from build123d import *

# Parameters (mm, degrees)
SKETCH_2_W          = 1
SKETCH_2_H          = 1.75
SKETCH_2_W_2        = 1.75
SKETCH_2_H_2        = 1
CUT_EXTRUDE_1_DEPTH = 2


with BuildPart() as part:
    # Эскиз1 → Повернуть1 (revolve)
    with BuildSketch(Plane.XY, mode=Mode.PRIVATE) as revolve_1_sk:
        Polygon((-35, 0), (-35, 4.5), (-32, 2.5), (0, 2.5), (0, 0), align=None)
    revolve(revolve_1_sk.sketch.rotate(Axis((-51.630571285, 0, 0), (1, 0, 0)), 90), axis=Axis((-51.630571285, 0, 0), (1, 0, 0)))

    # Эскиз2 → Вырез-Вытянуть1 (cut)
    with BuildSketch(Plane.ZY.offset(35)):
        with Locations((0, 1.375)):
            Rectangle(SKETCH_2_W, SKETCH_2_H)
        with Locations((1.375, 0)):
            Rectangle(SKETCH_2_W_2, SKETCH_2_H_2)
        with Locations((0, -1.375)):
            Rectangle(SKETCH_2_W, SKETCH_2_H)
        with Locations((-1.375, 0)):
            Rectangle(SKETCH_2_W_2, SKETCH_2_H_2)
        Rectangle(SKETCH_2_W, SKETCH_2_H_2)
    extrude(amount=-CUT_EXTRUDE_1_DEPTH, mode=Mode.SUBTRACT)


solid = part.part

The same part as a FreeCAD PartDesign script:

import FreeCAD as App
import Part
import Sketcher
from FreeCAD import Vector

doc = App.newDocument("Part")
body = doc.addObject("PartDesign::Body", "Body")

sketch1 = doc.addObject("Sketcher::SketchObject", "Sketch")
body.addObject(sketch1)
sketch1.AttachmentSupport = (doc.XY_Plane, [""])
sketch1.MapMode = "FlatFace"
sketch1.addGeometry([
    Part.LineSegment(Vector(-35, 4.5, 0), Vector(-35, 0, 0)),
    Part.LineSegment(Vector(-35, 0, 0), Vector(0, 0, 0)),
    Part.LineSegment(Vector(0, 0, 0), Vector(0, 2.5, 0)),
    Part.LineSegment(Vector(0, 2.5, 0), Vector(-32, 2.5, 0)),
    Part.LineSegment(Vector(-32, 2.5, 0), Vector(-35, 4.5, 0)),
], False)
sketch1.addConstraint([
    Sketcher.Constraint("Coincident", 0, 2, 1, 1),
    Sketcher.Constraint("Coincident", 1, 2, 2, 1),
    Sketcher.Constraint("Coincident", 2, 2, 3, 1),
    Sketcher.Constraint("Coincident", 3, 2, 4, 1),
    Sketcher.Constraint("Coincident", 4, 2, 0, 1),
    Sketcher.Constraint("Vertical", 0),
    Sketcher.Constraint("Horizontal", 1),
    Sketcher.Constraint("Vertical", 2),
    Sketcher.Constraint("Horizontal", 3),
    Sketcher.Constraint("Coincident", 1, 2, -1, 1),
    Sketcher.Constraint("DistanceX", 1, 1, 1, 2, 35.0),
    Sketcher.Constraint("DistanceX", 3, 2, 3, 1, 32.0),
    Sketcher.Constraint("DistanceY", 0, 2, 0, 1, 4.5),
    Sketcher.Constraint("DistanceY", 2, 1, 2, 2, 2.5),
])
revolution = doc.addObject("PartDesign::Revolution", "Revolution")
body.addObject(revolution)
revolution.Profile = sketch1
revolution.ReferenceAxis = (sketch1, ["H_Axis"])
revolution.Angle = 360

sketch2 = doc.addObject("Sketcher::SketchObject", "Sketch001")
body.addObject(sketch2)
sketch2.AttachmentSupport = (doc.YZ_Plane, [""])
sketch2.MapMode = "FlatFace"
sketch2.AttachmentOffset = App.Placement(Vector(0, 0, -35), App.Rotation())
sketch2.addGeometry([
    Part.LineSegment(Vector(2.2, -0.5, 0), Vector(0.5, -0.5, 0)),
    Part.LineSegment(Vector(0.5, -0.5, 0), Vector(0.5, -2.2, 0)),
    Part.LineSegment(Vector(0.5, -2.2, 0), Vector(-0.5, -2.2, 0)),
    Part.LineSegment(Vector(-0.5, -2.2, 0), Vector(-0.5, -0.5, 0)),
    Part.LineSegment(Vector(-0.5, -0.5, 0), Vector(-2.2, -0.5, 0)),
    Part.LineSegment(Vector(-2.2, -0.5, 0), Vector(-2.2, 0.5, 0)),
    Part.LineSegment(Vector(-2.2, 0.5, 0), Vector(-0.5, 0.5, 0)),
    Part.LineSegment(Vector(-0.5, 0.5, 0), Vector(-0.5, 2.2, 0)),
    Part.LineSegment(Vector(-0.5, 2.2, 0), Vector(0.5, 2.2, 0)),
    Part.LineSegment(Vector(0.5, 2.2, 0), Vector(0.5, 0.5, 0)),
    Part.LineSegment(Vector(0.5, 0.5, 0), Vector(2.2, 0.5, 0)),
    Part.LineSegment(Vector(2.2, 0.5, 0), Vector(2.2, -0.5, 0)),
], False)
sketch2.addConstraint([
    Sketcher.Constraint("Coincident", 0, 2, 1, 1),
    Sketcher.Constraint("Coincident", 1, 2, 2, 1),
    Sketcher.Constraint("Coincident", 2, 2, 3, 1),
    Sketcher.Constraint("Coincident", 3, 2, 4, 1),
    Sketcher.Constraint("Coincident", 4, 2, 5, 1),
    Sketcher.Constraint("Coincident", 5, 2, 6, 1),
    Sketcher.Constraint("Coincident", 6, 2, 7, 1),
    Sketcher.Constraint("Coincident", 7, 2, 8, 1),
    Sketcher.Constraint("Coincident", 8, 2, 9, 1),
    Sketcher.Constraint("Coincident", 9, 2, 10, 1),
    Sketcher.Constraint("Coincident", 10, 2, 11, 1),
    Sketcher.Constraint("Coincident", 11, 2, 0, 1),
    Sketcher.Constraint("Horizontal", 0),
    Sketcher.Constraint("Vertical", 1),
    Sketcher.Constraint("Horizontal", 2),
    Sketcher.Constraint("Vertical", 3),
    Sketcher.Constraint("Horizontal", 4),
    Sketcher.Constraint("Vertical", 5),
    Sketcher.Constraint("Horizontal", 6),
    Sketcher.Constraint("Vertical", 7),
    Sketcher.Constraint("Horizontal", 8),
    Sketcher.Constraint("Vertical", 9),
    Sketcher.Constraint("Horizontal", 10),
    Sketcher.Constraint("Vertical", 11),
    Sketcher.Constraint("Symmetric", 0, 2, 6, 2, -1, 1),
    Sketcher.Constraint("Symmetric", 2, 2, 8, 2, -1, 1),
    Sketcher.Constraint("Symmetric", 4, 2, 10, 2, -1, 1),
    Sketcher.Constraint("Symmetric", 0, 2, 3, 2, -2),
    Sketcher.Constraint("Equal", 10, 1),
    Sketcher.Constraint("Equal", 8, 5),
    Sketcher.Constraint("DistanceX", 2, 2, 2, 1, 1.0),
    Sketcher.Constraint("DistanceX", 0, 2, 0, 1, 1.75),
])
pocket1 = doc.addObject("PartDesign::Pocket", "Pocket")
body.addObject(pocket1)
pocket1.Profile = sketch2
pocket1.Length = 2
pocket1.Reversed = True

doc.recompute()
